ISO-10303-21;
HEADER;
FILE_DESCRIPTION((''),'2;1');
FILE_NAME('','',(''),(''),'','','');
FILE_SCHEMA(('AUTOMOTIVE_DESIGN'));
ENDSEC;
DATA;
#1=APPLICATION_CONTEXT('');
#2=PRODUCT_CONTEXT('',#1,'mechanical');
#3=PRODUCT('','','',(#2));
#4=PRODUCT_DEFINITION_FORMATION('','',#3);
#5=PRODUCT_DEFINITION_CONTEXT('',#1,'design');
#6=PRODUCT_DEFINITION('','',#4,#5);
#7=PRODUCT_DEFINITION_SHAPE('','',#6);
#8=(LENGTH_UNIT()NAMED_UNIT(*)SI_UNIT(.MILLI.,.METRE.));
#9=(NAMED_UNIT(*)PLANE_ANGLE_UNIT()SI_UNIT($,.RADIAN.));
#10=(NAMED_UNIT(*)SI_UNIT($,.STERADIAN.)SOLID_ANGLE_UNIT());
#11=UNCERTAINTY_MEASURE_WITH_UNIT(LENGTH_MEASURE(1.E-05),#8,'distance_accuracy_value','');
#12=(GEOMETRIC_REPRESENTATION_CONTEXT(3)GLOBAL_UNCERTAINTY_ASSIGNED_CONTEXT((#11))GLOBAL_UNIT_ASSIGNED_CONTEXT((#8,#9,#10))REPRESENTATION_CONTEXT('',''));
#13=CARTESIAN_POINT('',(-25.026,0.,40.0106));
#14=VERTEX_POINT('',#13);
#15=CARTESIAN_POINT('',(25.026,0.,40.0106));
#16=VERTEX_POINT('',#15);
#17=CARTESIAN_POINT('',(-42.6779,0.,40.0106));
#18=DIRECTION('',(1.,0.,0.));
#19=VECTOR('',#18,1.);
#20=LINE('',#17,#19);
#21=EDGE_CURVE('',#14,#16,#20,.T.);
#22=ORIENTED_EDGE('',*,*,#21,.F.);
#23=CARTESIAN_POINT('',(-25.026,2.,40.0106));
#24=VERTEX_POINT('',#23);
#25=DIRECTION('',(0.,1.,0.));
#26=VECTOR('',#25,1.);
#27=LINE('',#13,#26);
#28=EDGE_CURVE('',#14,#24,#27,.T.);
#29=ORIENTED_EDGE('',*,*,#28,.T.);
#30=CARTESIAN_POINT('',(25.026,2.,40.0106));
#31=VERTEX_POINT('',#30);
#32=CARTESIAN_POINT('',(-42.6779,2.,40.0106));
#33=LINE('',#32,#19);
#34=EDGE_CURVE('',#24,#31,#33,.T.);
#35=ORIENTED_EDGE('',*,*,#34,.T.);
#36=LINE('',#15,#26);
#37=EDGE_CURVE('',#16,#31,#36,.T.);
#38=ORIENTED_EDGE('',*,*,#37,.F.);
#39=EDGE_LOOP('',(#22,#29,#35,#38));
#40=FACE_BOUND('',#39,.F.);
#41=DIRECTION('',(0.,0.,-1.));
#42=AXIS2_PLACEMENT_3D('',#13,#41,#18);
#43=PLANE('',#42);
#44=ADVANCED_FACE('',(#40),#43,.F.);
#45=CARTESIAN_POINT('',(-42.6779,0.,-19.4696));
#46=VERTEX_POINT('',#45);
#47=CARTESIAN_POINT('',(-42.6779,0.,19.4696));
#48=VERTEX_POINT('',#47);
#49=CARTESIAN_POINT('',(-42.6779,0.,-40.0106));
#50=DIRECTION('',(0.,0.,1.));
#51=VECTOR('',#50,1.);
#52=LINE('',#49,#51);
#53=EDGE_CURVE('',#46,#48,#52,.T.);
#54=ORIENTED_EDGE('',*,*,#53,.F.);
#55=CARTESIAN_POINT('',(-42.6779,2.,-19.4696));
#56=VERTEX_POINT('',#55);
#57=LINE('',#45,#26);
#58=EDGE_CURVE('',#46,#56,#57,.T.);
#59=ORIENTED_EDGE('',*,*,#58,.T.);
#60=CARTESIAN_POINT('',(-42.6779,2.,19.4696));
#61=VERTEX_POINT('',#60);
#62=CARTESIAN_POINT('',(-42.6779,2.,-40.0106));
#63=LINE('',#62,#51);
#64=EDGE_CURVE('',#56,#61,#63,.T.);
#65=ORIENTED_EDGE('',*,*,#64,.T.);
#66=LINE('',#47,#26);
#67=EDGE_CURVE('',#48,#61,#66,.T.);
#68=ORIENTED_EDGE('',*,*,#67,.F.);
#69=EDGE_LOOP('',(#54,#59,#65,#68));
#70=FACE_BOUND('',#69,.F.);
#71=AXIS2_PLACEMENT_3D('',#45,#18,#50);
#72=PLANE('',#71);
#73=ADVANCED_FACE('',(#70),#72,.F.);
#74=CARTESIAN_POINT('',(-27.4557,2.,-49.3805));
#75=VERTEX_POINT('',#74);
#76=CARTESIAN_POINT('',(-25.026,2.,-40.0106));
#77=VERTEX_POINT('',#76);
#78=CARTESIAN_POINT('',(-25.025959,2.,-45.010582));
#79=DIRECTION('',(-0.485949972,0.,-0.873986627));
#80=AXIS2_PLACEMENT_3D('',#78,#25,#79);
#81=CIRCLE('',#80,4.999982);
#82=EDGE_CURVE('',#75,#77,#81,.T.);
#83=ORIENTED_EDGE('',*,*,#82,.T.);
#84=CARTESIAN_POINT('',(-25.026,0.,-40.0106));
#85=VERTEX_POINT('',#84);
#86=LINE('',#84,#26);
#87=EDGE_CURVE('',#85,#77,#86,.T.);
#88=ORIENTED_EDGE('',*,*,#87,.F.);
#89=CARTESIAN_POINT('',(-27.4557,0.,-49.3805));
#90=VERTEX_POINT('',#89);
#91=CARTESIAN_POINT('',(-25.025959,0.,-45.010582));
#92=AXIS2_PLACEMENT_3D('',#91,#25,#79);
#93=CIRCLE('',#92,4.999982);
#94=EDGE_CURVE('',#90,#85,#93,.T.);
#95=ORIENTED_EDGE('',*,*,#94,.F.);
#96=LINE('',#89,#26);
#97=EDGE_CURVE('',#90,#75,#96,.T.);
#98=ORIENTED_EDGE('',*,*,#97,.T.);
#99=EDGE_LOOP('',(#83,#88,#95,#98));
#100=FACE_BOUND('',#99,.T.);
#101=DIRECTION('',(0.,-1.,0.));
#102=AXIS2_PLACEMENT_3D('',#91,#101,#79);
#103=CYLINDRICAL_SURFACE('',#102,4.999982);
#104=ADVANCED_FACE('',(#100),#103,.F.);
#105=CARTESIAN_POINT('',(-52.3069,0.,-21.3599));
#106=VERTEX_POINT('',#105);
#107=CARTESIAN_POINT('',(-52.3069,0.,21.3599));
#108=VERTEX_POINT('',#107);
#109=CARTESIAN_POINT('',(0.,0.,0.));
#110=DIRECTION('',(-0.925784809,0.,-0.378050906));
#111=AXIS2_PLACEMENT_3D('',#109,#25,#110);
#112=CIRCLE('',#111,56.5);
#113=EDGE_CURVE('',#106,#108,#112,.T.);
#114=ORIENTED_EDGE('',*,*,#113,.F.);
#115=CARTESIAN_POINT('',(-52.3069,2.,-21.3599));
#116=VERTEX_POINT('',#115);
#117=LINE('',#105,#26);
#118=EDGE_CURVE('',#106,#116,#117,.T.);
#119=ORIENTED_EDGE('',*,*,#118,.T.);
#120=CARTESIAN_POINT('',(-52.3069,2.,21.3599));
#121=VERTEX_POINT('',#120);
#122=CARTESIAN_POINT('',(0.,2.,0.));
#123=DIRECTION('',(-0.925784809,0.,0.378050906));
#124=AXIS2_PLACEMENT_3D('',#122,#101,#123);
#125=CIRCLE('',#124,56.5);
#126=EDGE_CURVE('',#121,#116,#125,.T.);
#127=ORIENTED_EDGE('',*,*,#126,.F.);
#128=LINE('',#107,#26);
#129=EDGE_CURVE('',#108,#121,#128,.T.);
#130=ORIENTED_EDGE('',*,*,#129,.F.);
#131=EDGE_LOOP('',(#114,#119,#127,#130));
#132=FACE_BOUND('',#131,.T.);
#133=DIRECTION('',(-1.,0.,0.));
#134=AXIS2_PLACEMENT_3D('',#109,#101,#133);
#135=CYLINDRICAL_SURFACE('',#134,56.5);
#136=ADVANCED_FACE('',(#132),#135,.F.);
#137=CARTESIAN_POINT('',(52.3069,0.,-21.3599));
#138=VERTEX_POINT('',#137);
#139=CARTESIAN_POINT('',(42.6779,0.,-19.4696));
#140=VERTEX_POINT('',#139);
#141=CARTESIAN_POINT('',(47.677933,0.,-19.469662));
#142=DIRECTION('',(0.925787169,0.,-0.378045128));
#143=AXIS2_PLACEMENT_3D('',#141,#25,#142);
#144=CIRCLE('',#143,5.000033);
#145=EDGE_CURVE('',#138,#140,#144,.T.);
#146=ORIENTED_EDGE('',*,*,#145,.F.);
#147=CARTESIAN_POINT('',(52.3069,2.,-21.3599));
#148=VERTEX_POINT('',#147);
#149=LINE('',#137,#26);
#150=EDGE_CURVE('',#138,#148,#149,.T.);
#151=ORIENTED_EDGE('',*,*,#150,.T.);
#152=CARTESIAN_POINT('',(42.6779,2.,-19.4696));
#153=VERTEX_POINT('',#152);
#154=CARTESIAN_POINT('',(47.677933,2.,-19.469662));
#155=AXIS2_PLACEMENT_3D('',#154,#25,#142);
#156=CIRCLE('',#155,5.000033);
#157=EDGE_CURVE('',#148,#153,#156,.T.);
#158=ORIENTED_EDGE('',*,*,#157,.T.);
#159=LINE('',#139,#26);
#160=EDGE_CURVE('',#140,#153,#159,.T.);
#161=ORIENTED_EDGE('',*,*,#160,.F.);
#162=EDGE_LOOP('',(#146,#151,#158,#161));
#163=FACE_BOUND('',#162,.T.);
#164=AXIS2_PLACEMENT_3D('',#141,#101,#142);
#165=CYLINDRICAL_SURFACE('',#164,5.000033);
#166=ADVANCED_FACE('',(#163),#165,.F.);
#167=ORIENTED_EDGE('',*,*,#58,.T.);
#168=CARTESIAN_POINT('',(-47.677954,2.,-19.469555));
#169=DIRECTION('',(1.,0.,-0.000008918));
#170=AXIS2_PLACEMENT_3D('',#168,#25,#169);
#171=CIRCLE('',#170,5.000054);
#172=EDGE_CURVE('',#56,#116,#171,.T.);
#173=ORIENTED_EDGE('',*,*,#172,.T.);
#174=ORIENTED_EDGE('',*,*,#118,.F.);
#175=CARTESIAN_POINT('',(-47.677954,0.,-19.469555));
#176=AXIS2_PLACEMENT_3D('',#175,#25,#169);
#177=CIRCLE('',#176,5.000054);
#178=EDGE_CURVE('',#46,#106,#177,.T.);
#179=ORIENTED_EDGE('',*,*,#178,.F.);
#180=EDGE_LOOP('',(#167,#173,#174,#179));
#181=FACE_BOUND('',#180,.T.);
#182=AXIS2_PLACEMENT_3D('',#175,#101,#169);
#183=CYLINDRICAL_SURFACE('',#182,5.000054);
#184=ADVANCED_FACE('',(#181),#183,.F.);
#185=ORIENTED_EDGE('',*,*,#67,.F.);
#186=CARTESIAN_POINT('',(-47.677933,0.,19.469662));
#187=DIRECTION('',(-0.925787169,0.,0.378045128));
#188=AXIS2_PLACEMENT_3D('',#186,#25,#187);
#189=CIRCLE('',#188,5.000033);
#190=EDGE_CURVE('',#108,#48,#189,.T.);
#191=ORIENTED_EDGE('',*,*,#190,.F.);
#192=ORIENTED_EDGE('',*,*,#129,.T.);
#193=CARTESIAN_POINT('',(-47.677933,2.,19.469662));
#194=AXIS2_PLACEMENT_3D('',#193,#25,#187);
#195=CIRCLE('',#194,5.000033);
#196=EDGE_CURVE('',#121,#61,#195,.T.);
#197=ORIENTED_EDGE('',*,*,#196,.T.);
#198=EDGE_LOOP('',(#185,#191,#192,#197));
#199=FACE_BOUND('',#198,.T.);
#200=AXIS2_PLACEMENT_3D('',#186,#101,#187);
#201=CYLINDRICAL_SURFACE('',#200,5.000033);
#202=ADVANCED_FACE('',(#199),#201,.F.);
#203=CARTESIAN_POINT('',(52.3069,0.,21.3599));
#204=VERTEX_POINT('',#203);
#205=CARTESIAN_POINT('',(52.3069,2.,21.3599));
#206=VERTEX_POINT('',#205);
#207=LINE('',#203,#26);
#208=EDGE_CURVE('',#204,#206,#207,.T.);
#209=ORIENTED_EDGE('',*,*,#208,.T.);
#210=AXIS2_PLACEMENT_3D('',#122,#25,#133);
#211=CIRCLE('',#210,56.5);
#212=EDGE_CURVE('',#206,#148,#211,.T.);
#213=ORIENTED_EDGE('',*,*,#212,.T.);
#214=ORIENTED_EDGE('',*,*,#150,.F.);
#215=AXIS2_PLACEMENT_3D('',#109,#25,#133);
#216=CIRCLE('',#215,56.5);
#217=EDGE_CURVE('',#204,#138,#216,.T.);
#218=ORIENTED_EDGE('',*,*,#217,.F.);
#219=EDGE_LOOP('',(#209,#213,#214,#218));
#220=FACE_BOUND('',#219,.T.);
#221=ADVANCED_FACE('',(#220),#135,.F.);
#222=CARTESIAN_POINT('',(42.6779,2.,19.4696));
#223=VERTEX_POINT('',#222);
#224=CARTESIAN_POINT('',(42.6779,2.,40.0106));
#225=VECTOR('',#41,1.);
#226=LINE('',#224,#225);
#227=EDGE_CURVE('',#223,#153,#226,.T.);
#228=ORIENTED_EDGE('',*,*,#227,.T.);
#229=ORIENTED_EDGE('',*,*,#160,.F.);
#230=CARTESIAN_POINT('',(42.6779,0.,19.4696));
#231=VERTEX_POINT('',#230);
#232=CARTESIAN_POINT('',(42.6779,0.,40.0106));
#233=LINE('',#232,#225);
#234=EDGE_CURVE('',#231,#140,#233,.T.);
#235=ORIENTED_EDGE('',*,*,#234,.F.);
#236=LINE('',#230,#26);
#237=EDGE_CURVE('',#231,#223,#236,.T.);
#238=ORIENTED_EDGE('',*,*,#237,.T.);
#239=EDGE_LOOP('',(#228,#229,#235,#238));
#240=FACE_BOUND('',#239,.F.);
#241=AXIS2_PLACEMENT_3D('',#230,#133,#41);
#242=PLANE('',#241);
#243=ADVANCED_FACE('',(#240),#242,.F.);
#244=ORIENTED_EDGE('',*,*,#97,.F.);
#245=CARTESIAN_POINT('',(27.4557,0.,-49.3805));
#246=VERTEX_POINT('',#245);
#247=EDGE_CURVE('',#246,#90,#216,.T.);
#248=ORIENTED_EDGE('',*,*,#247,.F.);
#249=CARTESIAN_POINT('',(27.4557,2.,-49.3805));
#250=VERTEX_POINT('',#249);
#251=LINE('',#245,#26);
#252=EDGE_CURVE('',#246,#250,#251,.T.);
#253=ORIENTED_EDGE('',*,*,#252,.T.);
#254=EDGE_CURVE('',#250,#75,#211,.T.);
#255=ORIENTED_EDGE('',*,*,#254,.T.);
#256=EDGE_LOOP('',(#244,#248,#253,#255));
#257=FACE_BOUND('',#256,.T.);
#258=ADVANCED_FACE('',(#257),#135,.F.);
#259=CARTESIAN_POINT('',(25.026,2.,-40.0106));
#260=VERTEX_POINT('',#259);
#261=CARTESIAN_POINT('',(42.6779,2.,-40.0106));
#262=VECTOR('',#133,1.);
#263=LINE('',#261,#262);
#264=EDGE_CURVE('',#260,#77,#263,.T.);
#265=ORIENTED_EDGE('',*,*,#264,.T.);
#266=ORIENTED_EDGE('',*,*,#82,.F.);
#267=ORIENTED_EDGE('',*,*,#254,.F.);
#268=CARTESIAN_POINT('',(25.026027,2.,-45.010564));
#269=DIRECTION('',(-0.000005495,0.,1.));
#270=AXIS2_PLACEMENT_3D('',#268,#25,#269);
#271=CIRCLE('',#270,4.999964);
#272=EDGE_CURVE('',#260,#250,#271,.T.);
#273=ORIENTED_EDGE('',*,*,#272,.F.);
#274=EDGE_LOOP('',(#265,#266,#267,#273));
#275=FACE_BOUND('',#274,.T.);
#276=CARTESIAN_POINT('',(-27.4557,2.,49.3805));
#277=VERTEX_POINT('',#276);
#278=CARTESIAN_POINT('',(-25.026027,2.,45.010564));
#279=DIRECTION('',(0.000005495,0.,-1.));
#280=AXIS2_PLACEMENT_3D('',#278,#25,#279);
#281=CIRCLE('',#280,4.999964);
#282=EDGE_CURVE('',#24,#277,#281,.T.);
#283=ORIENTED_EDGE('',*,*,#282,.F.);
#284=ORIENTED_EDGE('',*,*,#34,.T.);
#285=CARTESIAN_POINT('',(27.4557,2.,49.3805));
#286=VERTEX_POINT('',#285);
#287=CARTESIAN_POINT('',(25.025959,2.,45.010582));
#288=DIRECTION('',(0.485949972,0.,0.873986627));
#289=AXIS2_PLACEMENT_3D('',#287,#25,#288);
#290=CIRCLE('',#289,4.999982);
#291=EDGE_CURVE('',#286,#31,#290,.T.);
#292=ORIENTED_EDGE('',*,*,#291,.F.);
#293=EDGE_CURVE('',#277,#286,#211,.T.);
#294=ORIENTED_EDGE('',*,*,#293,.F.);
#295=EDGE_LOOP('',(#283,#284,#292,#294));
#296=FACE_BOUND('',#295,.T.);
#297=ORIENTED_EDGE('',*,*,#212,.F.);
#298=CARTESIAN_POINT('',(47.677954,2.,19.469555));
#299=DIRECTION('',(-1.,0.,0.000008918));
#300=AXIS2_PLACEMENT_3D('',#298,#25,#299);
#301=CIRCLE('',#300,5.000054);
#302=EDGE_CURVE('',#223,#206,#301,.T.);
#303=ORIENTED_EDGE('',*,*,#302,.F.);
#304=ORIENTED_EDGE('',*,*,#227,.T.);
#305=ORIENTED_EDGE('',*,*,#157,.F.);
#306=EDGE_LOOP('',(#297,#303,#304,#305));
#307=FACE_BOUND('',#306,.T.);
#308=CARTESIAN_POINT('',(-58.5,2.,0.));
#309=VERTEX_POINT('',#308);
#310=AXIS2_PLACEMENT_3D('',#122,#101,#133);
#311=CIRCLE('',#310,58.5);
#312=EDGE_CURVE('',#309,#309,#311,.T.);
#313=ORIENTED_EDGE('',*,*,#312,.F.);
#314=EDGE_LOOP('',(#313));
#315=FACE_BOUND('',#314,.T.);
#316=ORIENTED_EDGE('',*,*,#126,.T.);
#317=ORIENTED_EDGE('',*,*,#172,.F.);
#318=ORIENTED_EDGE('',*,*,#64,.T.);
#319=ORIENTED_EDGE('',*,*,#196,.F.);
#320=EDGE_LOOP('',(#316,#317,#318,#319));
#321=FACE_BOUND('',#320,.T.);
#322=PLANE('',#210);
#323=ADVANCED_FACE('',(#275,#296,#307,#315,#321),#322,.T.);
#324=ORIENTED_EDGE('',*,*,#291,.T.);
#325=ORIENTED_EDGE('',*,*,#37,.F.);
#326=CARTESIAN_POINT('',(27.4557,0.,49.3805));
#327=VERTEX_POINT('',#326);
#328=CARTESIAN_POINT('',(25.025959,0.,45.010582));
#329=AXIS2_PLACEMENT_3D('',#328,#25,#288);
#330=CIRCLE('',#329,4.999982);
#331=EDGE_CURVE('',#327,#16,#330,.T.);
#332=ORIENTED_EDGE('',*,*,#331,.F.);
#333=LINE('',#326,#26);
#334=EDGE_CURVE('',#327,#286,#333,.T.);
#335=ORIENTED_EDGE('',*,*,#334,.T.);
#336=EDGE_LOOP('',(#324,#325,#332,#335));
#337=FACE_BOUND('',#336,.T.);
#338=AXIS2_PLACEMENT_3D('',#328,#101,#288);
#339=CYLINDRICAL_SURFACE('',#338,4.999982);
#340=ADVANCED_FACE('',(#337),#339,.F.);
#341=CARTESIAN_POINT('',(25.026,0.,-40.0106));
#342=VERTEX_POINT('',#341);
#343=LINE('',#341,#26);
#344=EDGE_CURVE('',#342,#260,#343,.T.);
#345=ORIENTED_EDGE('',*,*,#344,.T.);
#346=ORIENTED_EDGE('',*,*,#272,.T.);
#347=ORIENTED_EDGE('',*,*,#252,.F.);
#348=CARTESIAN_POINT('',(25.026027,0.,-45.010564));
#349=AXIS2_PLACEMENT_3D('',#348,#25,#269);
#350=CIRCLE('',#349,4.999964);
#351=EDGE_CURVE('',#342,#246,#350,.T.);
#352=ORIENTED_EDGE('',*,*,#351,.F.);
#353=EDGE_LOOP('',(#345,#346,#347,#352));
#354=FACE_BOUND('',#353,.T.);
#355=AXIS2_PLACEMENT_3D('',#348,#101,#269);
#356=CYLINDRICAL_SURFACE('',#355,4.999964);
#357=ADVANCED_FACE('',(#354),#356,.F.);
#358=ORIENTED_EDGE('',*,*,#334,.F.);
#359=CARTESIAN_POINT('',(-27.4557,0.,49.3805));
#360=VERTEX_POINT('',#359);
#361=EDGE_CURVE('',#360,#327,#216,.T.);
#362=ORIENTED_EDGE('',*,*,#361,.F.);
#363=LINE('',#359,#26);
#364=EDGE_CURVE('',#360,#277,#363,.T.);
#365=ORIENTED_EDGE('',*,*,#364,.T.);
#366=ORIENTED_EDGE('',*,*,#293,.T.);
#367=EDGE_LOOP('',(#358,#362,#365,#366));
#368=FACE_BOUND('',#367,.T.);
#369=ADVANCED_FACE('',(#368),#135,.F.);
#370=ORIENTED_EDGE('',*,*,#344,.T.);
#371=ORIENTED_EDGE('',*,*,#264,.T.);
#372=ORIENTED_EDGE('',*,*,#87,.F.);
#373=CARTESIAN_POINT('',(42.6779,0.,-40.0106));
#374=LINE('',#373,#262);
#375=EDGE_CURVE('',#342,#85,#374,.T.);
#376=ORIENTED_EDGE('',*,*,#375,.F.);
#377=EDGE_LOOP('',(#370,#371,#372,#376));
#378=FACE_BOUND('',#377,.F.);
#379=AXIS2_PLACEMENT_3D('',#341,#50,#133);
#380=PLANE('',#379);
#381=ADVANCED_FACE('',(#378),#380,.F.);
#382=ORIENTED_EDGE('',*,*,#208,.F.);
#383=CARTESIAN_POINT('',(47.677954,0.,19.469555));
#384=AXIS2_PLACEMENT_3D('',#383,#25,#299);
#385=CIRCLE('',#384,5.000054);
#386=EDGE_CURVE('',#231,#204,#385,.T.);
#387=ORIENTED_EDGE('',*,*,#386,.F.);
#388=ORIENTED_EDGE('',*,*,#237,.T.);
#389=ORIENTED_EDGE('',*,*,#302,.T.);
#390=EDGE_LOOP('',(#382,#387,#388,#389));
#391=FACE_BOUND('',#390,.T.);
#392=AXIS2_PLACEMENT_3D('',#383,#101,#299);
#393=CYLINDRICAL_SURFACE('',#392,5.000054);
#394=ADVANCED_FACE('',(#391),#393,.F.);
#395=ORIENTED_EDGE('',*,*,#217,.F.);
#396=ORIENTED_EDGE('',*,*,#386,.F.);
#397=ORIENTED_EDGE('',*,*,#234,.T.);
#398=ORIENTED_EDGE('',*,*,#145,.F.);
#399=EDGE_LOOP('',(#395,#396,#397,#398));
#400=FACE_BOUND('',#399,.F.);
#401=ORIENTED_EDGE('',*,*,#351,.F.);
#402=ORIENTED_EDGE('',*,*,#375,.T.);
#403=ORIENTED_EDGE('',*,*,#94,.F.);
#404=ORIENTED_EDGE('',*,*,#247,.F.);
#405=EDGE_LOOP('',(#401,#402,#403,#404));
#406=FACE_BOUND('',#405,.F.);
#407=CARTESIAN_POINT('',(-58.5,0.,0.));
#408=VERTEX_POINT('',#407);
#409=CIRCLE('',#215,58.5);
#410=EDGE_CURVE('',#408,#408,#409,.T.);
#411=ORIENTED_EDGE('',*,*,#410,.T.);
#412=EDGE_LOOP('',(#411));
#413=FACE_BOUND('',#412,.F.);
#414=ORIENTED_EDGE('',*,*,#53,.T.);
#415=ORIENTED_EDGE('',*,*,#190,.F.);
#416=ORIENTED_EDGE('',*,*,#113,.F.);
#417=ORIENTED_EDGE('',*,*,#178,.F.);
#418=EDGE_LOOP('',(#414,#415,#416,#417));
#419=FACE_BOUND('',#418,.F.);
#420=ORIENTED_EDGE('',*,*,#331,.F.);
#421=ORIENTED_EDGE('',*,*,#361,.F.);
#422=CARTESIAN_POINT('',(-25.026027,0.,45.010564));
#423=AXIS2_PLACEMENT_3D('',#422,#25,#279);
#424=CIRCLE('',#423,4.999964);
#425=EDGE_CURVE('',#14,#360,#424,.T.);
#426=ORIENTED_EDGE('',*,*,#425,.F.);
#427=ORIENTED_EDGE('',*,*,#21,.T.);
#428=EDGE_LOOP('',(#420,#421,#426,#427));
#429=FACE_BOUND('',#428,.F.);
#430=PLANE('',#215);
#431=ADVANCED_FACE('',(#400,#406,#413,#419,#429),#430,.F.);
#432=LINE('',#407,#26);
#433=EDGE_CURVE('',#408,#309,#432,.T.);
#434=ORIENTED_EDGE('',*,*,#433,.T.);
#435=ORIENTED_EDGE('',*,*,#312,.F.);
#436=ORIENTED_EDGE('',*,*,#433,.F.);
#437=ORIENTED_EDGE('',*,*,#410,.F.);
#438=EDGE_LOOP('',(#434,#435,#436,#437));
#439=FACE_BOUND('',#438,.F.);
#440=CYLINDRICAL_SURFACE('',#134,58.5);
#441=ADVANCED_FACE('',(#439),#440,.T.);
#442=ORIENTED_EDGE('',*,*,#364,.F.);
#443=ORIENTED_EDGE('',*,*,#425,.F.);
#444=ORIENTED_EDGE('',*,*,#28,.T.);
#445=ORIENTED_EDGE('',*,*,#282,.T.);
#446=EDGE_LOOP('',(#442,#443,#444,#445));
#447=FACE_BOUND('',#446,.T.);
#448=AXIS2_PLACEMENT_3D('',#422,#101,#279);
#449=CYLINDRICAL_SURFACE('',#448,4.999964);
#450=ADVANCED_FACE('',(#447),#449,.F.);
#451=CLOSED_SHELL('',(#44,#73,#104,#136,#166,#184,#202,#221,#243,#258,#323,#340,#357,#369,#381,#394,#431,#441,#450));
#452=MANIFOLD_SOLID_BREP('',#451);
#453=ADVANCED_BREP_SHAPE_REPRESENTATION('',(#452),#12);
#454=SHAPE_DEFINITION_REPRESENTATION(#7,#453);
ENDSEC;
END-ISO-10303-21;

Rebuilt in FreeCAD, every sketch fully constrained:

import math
import FreeCAD as App
import Part
import Sketcher

V = App.Vector

doc = App.newDocument("Part")
body = doc.addObject("PartDesign::Body", "Body")

# Sketch on XZ plane
sketch1 = doc.addObject("Sketcher::SketchObject", "Sketch")
body.addObject(sketch1)
sketch1.AttachmentSupport = (doc.XZ_Plane, [""])
sketch1.MapMode = "FlatFace"
sketch1.addGeometry([
    Part.Circle(V(0, 0, 0), V(0, 0, 1), 58.5),  # 0
    Part.ArcOfCircle(Part.Circle(V(-47.7, -19.5, 0), V(0, 0, 1), 5), math.radians(-158), math.radians(0)),  # 1
    Part.LineSegment(V(-42.7, -19.5, 0), V(-42.7, 19.5, 0)),  # 2
    Part.ArcOfCircle(Part.Circle(V(-47.7, 19.5, 0), V(0, 0, 1), 5), math.radians(0), math.radians(158)),  # 3
    Part.ArcOfCircle(Part.Circle(V(0, 0, 0), V(0, 0, 1), 56.5), math.radians(158), math.radians(202)),  # 4
    Part.ArcOfCircle(Part.Circle(V(0, 0, 0), V(0, 0, 1), 56.5), math.radians(-119), math.radians(-61)),  # 5
    Part.ArcOfCircle(Part.Circle(V(25, -45, 0), V(0, 0, 1), 5), math.radians(-61), math.radians(90)),  # 6
    Part.LineSegment(V(25, -40, 0), V(-25, -40, 0)),  # 7
    Part.ArcOfCircle(Part.Circle(V(-25, -45, 0), V(0, 0, 1), 5), math.radians(90), math.radians(241)),  # 8
    Part.LineSegment(V(-25, 40, 0), V(25, 40, 0)),  # 9
    Part.ArcOfCircle(Part.Circle(V(25, 45, 0), V(0, 0, 1), 5), math.radians(-90), math.radians(61)),  # 10
    Part.ArcOfCircle(Part.Circle(V(0, 0, 0), V(0, 0, 1), 56.5), math.radians(61), math.radians(119)),  # 11
    Part.ArcOfCircle(Part.Circle(V(-25, 45, 0), V(0, 0, 1), 5), math.radians(119), math.radians(270)),  # 12
    Part.LineSegment(V(42.7, 19.5, 0), V(42.7, -19.5, 0)),  # 13
    Part.ArcOfCircle(Part.Circle(V(47.7, -19.5, 0), V(0, 0, 1), 5), math.radians(180), math.radians(338)),  # 14
    Part.ArcOfCircle(Part.Circle(V(0, 0, 0), V(0, 0, 1), 56.5), math.radians(-22), math.radians(22)),  # 15
    Part.ArcOfCircle(Part.Circle(V(47.7, 19.5, 0), V(0, 0, 1), 5), math.radians(22), math.radians(180)),  # 16
], False)
sketch1.addConstraint([
    Sketcher.Constraint("Tangent", 1, 2, 2, 1),
    Sketcher.Constraint("Tangent", 2, 2, 3, 1),
    Sketcher.Constraint("Tangent", 3, 2, 4, 1),
    Sketcher.Constraint("Tangent", 4, 2, 1, 1),
    Sketcher.Constraint("Tangent", 5, 2, 6, 1),
    Sketcher.Constraint("Tangent", 6, 2, 7, 1),
    Sketcher.Constraint("Tangent", 7, 2, 8, 1),
    Sketcher.Constraint("Tangent", 8, 2, 5, 1),
    Sketcher.Constraint("Tangent", 9, 2, 10, 1),
    Sketcher.Constraint("Tangent", 10, 2, 11, 1),
    Sketcher.Constraint("Tangent", 11, 2, 12, 1),
    Sketcher.Constraint("Tangent", 12, 2, 9, 1),
    Sketcher.Constraint("Tangent", 13, 2, 14, 1),
    Sketcher.Constraint("Tangent", 14, 2, 15, 1),
    Sketcher.Constraint("Tangent", 15, 2, 16, 1),
    Sketcher.Constraint("Tangent", 16, 2, 13, 1),
    Sketcher.Constraint("Vertical", 2),
    Sketcher.Constraint("Horizontal", 7),
    Sketcher.Constraint("Horizontal", 9),
    Sketcher.Constraint("Vertical", 13),
    Sketcher.Constraint("Coincident", 0, 3, -1, 1),
    Sketcher.Constraint("Coincident", 4, 3, -1, 1),
    Sketcher.Constraint("Coincident", 5, 3, -1, 1),
    Sketcher.Constraint("Coincident", 11, 3, -1, 1),
    Sketcher.Constraint("Coincident", 15, 3, -1, 1),
    Sketcher.Constraint("Equal", 1, 3),
    Sketcher.Constraint("Equal", 4, 5),
    Sketcher.Constraint("Equal", 3, 6),
    Sketcher.Constraint("Equal", 6, 8),
    Sketcher.Constraint("Equal", 8, 10),
    Sketcher.Constraint("Equal", 5, 11),
    Sketcher.Constraint("Equal", 10, 12),
    Sketcher.Constraint("Equal", 12, 14),
    Sketcher.Constraint("Equal", 11, 15),
    Sketcher.Constraint("Equal", 14, 16),
    Sketcher.Constraint("Horizontal", 1, 3, 14, 3),
    Sketcher.Constraint("Vertical", 6, 3, 10, 3),
    Sketcher.Constraint("Diameter", 0, 117.0),
    Sketcher.Constraint("Radius", 1, 5.0),
    Sketcher.Constraint("Radius", 4, 56.5),
    Sketcher.Constraint("DistanceX", 7, 2, 7, 1, 50.052),
    Sketcher.Constraint("DistanceY", -1, 1, 3, 2, 21.36),
])
pad1 = doc.addObject("PartDesign::Pad", "Pad")
body.addObject(pad1)
pad1.Profile = sketch1
pad1.Length = 2
pad1.Reversed = True

doc.recompute()
